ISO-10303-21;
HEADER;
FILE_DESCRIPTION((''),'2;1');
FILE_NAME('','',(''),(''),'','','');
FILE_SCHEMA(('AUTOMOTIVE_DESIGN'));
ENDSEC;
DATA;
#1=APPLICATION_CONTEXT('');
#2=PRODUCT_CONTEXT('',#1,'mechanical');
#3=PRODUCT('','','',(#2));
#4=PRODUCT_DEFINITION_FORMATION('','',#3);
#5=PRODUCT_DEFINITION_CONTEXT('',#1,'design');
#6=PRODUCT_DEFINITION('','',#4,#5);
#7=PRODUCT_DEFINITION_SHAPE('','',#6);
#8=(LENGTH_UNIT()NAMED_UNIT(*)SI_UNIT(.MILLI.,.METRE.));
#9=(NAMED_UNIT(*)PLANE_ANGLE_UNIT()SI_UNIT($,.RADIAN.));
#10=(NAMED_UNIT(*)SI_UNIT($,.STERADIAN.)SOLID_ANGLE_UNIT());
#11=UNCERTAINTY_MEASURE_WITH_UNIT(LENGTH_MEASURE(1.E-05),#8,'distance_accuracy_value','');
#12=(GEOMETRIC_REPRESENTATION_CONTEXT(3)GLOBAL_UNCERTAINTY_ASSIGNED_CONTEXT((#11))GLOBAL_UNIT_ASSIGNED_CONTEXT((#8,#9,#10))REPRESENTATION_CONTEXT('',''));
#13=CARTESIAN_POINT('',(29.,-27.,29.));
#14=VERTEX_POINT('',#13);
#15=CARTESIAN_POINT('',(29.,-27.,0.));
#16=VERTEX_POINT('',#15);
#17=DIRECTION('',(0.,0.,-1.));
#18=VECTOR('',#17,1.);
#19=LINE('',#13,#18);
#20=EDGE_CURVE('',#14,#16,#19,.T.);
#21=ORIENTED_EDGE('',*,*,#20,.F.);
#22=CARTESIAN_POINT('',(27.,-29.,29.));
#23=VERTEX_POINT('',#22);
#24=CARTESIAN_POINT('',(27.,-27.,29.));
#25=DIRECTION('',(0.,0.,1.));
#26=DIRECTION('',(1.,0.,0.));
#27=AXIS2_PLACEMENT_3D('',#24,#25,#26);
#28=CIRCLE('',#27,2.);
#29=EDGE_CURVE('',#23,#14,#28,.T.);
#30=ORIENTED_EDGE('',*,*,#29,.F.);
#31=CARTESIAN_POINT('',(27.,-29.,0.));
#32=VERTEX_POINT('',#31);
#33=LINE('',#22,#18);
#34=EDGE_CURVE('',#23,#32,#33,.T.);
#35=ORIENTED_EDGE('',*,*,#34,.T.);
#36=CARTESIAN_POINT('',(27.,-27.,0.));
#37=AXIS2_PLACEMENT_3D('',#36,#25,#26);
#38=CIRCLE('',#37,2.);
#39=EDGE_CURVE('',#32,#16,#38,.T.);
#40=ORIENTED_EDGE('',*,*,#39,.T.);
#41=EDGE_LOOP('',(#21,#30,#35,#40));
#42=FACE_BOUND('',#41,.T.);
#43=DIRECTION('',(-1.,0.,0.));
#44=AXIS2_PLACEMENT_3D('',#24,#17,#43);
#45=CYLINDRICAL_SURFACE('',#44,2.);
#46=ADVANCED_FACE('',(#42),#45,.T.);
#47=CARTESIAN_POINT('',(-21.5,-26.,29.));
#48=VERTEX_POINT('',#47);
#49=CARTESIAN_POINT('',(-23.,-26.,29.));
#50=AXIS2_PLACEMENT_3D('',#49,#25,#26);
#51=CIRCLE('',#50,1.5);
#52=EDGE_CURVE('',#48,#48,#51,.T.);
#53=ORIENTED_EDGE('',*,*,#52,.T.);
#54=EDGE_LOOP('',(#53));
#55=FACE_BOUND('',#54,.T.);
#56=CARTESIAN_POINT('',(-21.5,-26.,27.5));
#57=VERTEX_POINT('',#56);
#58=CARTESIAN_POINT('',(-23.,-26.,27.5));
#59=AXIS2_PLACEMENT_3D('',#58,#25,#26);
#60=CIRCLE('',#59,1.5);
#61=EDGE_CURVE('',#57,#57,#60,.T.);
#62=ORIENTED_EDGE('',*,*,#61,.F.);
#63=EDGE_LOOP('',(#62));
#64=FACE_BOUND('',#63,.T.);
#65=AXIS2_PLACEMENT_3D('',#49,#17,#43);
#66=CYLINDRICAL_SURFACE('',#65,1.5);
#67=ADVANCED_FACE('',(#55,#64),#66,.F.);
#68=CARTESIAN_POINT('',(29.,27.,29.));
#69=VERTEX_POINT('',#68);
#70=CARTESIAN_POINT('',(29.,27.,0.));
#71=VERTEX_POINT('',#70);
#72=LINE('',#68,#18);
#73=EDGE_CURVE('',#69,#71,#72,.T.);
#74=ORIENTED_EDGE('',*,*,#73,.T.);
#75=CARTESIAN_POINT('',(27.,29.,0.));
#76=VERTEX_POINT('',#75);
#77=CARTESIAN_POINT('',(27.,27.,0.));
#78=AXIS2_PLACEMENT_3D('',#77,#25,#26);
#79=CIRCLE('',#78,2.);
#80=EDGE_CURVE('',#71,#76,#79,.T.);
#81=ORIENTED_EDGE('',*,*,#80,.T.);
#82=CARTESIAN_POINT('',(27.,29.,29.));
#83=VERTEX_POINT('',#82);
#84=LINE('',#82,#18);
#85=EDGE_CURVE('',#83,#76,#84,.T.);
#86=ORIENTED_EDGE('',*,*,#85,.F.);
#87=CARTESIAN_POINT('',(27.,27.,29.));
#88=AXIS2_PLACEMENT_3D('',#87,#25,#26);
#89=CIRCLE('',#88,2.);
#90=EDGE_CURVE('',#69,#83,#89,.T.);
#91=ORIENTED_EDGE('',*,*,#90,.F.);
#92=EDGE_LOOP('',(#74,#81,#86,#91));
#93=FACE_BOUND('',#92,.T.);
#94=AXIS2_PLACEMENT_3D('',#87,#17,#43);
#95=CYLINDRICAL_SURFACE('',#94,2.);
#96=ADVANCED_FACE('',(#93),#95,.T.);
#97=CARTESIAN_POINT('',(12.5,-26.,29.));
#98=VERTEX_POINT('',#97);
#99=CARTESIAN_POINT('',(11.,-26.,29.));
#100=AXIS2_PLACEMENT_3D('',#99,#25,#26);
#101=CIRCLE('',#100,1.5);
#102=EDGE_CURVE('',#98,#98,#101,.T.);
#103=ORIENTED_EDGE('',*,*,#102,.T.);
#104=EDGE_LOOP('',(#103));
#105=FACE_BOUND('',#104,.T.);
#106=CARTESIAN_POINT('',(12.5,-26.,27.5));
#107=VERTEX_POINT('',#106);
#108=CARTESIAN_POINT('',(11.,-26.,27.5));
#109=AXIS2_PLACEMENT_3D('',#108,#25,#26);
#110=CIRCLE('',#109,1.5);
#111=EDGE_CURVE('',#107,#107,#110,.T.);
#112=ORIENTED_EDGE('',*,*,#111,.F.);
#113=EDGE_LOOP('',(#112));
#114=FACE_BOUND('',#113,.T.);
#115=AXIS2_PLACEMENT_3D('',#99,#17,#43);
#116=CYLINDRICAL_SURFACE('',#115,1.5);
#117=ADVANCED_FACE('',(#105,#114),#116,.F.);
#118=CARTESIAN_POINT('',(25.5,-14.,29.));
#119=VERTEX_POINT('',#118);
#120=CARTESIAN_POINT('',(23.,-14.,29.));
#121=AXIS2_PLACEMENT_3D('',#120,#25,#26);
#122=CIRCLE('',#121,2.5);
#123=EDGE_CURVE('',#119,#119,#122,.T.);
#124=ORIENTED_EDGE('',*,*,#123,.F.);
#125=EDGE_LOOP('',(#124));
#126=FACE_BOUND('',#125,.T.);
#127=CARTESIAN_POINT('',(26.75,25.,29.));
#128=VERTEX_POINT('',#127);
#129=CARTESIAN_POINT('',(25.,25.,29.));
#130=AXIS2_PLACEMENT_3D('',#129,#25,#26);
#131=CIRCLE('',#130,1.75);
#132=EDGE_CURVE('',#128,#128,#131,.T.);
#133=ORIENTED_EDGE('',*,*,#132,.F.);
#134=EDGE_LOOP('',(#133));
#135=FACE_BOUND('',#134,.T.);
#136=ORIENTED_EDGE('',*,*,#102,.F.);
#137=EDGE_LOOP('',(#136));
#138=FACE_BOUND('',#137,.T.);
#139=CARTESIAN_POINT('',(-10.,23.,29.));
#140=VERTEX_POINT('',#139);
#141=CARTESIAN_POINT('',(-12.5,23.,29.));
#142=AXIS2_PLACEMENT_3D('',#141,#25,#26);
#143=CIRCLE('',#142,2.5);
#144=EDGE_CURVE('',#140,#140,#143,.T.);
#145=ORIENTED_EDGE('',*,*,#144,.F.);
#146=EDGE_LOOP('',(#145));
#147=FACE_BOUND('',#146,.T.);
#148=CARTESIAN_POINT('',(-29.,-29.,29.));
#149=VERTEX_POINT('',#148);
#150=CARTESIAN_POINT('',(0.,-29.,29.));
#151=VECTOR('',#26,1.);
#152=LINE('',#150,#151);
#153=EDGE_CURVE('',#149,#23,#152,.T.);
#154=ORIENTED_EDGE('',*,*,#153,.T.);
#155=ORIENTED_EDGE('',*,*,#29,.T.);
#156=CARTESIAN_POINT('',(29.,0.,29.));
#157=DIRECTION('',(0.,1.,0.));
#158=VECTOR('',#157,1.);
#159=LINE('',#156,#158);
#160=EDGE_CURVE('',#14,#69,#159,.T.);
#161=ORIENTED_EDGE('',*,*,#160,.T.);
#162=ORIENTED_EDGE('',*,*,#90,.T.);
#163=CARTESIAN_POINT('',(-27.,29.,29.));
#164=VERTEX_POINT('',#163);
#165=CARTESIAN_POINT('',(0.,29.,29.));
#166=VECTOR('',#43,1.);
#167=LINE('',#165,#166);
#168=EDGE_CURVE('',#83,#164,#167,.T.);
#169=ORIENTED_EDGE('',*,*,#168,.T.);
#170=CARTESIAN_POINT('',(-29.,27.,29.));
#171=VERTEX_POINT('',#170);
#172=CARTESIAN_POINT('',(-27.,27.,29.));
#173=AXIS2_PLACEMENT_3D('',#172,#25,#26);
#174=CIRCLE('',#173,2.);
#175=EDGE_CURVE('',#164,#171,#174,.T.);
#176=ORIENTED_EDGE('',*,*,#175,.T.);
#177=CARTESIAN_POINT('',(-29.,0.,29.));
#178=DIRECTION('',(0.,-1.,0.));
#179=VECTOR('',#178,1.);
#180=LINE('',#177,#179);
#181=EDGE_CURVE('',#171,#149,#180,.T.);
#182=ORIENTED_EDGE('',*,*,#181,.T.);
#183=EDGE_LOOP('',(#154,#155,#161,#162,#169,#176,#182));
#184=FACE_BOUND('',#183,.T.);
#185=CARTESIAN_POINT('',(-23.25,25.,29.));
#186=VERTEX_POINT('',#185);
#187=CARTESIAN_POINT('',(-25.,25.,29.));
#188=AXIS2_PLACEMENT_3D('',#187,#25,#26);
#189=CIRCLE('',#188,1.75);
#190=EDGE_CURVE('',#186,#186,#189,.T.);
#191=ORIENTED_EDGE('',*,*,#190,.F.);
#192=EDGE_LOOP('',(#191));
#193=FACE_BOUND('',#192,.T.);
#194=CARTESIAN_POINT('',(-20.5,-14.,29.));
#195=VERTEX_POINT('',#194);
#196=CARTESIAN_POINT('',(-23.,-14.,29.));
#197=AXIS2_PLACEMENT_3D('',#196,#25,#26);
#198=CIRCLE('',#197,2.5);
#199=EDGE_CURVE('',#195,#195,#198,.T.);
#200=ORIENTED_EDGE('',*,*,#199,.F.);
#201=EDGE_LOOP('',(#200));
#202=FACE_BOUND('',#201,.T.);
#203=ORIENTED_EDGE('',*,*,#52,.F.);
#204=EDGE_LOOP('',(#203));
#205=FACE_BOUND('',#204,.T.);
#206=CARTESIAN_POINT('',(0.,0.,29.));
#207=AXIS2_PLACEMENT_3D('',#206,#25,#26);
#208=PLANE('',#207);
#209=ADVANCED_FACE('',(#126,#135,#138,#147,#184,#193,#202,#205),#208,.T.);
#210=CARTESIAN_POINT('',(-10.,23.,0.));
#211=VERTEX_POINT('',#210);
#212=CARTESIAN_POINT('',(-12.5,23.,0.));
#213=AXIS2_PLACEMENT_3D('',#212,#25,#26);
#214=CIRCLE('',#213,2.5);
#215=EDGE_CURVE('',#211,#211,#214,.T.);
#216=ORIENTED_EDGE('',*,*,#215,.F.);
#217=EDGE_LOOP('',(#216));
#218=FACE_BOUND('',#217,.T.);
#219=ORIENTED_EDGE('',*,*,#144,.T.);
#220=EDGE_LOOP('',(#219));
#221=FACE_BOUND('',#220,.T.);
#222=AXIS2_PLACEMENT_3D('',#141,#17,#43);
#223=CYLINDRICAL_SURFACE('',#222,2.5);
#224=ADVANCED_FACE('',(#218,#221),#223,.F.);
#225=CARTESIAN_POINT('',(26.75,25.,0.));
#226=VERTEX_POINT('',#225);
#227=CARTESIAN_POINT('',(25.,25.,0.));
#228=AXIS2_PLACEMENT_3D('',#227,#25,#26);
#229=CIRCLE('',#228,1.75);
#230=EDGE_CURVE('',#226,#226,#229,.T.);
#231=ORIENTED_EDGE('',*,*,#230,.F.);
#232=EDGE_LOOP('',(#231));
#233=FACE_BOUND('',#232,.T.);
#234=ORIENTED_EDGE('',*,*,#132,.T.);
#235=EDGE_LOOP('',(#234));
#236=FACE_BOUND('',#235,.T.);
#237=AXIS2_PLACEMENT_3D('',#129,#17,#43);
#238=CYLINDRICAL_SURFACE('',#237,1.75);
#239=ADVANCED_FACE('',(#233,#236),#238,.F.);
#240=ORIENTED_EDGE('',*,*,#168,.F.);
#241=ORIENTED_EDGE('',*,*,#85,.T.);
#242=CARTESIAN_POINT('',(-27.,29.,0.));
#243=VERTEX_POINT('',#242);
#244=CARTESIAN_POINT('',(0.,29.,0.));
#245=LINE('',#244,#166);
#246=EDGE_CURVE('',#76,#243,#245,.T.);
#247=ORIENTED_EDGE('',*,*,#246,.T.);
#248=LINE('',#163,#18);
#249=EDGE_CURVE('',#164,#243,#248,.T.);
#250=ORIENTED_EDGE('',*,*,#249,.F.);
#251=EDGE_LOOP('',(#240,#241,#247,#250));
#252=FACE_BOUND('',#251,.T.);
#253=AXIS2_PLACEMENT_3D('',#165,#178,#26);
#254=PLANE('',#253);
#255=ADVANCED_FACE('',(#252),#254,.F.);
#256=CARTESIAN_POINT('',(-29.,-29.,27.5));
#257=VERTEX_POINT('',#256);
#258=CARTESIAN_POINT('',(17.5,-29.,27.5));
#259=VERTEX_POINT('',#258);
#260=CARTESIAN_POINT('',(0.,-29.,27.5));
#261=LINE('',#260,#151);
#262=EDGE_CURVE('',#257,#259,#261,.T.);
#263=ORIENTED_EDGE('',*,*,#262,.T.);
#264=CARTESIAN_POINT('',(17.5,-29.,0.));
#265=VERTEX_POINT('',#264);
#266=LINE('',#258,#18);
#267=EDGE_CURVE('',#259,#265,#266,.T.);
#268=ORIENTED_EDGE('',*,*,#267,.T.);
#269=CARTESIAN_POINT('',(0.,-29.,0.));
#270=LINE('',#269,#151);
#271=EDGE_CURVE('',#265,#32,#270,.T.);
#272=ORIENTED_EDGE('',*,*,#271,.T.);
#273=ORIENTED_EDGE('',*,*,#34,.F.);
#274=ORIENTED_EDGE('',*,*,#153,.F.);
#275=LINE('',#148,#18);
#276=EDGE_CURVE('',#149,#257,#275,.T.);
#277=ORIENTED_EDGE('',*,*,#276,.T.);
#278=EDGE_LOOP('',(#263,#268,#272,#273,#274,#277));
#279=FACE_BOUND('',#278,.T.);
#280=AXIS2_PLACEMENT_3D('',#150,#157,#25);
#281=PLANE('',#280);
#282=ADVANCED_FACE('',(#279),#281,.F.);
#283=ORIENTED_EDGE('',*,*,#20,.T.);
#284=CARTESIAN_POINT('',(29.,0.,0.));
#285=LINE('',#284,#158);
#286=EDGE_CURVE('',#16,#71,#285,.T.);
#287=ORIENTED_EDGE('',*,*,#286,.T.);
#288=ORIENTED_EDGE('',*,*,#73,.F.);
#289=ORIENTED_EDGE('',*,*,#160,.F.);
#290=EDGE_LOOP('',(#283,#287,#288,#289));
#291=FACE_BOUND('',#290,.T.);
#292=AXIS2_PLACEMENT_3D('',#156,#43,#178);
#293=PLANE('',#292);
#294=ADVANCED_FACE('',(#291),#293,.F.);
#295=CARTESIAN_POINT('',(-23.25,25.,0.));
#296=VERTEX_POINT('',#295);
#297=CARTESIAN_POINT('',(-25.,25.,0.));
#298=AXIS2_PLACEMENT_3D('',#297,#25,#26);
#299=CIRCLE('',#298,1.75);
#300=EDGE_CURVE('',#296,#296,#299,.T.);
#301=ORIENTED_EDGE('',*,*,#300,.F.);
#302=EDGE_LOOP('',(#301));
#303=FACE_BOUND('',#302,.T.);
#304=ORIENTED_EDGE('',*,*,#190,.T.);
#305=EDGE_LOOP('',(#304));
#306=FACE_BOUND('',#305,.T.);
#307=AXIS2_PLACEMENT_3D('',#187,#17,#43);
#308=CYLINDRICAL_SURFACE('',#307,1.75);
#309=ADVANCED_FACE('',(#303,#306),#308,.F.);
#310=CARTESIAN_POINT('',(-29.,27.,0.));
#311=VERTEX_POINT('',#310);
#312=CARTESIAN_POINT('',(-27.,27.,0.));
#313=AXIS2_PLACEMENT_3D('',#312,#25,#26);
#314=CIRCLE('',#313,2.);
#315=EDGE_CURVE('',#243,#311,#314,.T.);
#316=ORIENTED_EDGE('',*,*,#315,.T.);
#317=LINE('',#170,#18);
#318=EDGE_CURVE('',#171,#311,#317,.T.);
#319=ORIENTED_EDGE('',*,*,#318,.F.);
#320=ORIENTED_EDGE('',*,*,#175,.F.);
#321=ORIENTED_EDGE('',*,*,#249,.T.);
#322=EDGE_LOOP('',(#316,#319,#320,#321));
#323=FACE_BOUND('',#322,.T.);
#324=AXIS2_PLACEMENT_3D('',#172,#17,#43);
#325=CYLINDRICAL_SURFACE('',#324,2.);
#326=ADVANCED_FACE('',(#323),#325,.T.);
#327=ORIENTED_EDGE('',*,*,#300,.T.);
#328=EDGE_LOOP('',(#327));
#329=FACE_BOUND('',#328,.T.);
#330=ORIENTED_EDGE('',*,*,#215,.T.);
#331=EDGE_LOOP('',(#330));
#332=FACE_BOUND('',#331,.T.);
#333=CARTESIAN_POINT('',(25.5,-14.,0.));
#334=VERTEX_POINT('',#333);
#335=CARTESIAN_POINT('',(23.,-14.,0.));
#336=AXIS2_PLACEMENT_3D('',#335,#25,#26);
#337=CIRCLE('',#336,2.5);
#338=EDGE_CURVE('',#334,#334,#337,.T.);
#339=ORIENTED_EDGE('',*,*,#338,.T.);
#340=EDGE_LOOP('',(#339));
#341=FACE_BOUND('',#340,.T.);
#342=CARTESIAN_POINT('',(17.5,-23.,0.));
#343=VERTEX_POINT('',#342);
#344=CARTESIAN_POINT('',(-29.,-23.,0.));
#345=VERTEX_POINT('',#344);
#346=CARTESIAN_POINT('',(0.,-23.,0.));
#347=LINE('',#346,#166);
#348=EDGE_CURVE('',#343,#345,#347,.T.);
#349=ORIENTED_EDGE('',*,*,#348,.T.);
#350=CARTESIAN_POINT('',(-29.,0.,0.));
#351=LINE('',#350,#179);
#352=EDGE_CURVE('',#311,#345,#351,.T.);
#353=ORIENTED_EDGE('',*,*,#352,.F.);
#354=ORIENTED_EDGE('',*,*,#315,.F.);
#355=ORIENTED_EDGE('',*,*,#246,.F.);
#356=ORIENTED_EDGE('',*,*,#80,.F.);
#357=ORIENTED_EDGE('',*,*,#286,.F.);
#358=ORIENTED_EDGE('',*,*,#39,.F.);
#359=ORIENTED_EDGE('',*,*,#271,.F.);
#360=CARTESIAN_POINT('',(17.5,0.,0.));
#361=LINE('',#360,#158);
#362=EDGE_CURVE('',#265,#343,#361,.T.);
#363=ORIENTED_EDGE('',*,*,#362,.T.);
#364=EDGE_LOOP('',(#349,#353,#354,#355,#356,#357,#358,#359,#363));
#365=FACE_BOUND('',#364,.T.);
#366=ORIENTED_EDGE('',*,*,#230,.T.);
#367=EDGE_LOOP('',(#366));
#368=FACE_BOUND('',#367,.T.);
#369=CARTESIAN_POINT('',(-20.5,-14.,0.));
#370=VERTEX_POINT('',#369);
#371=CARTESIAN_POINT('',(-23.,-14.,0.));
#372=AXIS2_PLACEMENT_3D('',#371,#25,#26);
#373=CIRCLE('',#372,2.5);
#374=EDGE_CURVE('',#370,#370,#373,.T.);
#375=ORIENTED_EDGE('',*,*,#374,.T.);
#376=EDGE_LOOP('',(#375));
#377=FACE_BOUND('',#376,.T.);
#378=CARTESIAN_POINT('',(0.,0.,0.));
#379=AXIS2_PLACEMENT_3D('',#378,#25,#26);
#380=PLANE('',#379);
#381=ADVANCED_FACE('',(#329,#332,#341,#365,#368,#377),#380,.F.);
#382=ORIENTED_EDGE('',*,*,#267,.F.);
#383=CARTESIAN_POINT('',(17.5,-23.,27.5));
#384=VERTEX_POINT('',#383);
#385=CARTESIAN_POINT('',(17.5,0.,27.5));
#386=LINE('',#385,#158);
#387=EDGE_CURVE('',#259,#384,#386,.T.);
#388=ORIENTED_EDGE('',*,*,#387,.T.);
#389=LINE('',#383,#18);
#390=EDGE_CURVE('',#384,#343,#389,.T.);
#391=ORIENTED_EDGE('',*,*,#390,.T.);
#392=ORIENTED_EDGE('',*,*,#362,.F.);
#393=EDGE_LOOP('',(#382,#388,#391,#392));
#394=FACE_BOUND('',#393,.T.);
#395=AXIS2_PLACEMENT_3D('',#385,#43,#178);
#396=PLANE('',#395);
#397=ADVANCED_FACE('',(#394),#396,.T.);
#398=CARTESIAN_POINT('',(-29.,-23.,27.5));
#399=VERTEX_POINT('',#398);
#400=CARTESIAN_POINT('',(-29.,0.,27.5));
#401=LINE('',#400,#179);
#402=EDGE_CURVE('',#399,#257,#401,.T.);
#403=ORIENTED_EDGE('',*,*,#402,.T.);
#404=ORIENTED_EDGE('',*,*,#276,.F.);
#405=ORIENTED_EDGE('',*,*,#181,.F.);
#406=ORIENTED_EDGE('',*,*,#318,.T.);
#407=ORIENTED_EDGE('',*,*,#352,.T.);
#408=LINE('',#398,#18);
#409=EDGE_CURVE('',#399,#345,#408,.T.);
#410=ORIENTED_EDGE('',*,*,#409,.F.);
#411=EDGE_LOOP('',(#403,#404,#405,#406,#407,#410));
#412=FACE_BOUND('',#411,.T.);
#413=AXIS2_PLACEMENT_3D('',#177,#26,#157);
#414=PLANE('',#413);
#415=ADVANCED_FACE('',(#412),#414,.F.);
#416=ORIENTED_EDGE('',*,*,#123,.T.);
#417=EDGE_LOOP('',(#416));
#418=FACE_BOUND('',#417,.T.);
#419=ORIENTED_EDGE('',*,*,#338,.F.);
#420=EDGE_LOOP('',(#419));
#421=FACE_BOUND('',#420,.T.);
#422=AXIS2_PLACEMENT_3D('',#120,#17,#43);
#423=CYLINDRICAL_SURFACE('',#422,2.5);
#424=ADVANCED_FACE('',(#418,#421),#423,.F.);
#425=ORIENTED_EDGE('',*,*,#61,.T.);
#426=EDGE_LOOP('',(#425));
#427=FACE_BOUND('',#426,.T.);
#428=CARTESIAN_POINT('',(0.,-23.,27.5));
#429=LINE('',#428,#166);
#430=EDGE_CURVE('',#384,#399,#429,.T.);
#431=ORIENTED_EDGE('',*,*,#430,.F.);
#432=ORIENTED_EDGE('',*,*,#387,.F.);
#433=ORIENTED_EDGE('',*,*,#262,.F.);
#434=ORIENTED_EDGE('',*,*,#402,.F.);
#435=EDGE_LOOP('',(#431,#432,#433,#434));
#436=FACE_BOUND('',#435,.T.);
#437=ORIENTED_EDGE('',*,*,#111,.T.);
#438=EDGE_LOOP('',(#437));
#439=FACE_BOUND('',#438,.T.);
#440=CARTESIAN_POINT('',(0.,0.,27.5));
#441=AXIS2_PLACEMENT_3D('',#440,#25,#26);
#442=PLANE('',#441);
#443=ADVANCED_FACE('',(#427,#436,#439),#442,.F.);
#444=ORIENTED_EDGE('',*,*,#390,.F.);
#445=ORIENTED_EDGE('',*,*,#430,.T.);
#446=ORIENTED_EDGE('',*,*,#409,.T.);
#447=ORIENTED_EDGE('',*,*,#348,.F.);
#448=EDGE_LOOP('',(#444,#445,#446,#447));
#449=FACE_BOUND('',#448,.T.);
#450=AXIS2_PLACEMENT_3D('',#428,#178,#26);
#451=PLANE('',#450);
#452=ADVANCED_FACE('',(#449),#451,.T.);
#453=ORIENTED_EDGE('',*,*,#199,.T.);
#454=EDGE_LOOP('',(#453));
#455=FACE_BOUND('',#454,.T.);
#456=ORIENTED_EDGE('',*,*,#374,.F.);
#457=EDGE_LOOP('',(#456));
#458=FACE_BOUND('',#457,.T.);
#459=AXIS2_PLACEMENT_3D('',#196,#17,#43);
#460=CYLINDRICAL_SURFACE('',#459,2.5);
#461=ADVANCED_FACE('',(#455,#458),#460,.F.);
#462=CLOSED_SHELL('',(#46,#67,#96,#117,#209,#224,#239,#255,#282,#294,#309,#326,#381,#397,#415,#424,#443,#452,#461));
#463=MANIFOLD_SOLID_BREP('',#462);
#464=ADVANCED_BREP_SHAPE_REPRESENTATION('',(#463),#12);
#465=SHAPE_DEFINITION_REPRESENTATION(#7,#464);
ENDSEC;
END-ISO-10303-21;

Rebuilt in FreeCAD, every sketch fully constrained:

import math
import FreeCAD as App
import Part
import Sketcher

V = App.Vector


def add_polygon(sketch, points):
    """Adds a closed chain of lines whose ends are joined by coincident constraints."""
    first, n = sketch.GeometryCount, len(points)
    for a, b in zip(points, points[1:] + points[:1]):
        sketch.addGeometry(Part.LineSegment(App.Vector(*a, 0), App.Vector(*b, 0)), False)
    for i in range(n):
        sketch.addConstraint(Sketcher.Constraint("Coincident", first + i, 2, first + (i + 1) % n, 1))

doc = App.newDocument("Part")
body = doc.addObject("PartDesign::Body", "Body")

sketch1 = body.newObject("Sketcher::SketchObject", "Sketch")
sketch1.AttachmentSupport = (doc.getObject("XY_Plane"), [""])
sketch1.MapMode = "FlatFace"
sketch1.addGeometry([
    Part.LineSegment(V(27, 29, 0), V(-27, 29, 0)),
    Part.ArcOfCircle(Part.Circle(V(-27, 27, 0), V(0, 0, 1), 2), math.radians(90), math.radians(180)),
    Part.LineSegment(V(-29, 27, 0), V(-29, -29, 0)),
    Part.LineSegment(V(-29, -29, 0), V(27, -29, 0)),
    Part.ArcOfCircle(Part.Circle(V(27, -27, 0), V(0, 0, 1), 2), math.radians(-90), math.radians(0)),
    Part.LineSegment(V(29, -27, 0), V(29, 27, 0)),
    Part.ArcOfCircle(Part.Circle(V(27, 27, 0), V(0, 0, 1), 2), math.radians(0), math.radians(90)),
    Part.Circle(V(-23, -26, 0), V(0, 0, 1), 1.5),
    Part.Circle(V(-23, -14, 0), V(0, 0, 1), 2.5),
    Part.Circle(V(11, -26, 0), V(0, 0, 1), 1.5),
    Part.Circle(V(23, -14, 0), V(0, 0, 1), 2.5),
    Part.Circle(V(-25, 25, 0), V(0, 0, 1), 1.75),
    Part.Circle(V(-12.5, 23, 0), V(0, 0, 1), 2.5),
    Part.Circle(V(25, 25, 0), V(0, 0, 1), 1.75),
], False)
sketch1.addConstraint([
    Sketcher.Constraint("Tangent", 0, 2, 1, 1),
    Sketcher.Constraint("Tangent", 1, 2, 2, 1),
    Sketcher.Constraint("Coincident", 2, 2, 3, 1),
    Sketcher.Constraint("Tangent", 3, 2, 4, 1),
    Sketcher.Constraint("Tangent", 4, 2, 5, 1),
    Sketcher.Constraint("Tangent", 5, 2, 6, 1),
    Sketcher.Constraint("Tangent", 6, 2, 0, 1),
    Sketcher.Constraint("Horizontal", 0),
    Sketcher.Constraint("Vertical", 2),
    Sketcher.Constraint("Horizontal", 3),
    Sketcher.Constraint("Vertical", 5),
    Sketcher.Constraint("Equal", 1, 4),
    Sketcher.Constraint("Equal", 4, 6),
    Sketcher.Constraint("Equal", 7, 9),
    Sketcher.Constraint("Equal", 8, 10),
    Sketcher.Constraint("Equal", 10, 12),
    Sketcher.Constraint("Equal", 11, 13),
    Sketcher.Constraint("Symmetric", 1, 3, 4, 3, -1, 1),
    Sketcher.Constraint("Symmetric", 8, 3, 10, 3, -2),
    Sketcher.Constraint("Symmetric", 11, 3, 13, 3, -2),
    Sketcher.Constraint("Horizontal", 7, 3, 9, 3),
    Sketcher.Constraint("Vertical", 7, 3, 8, 3),
    Sketcher.Constraint("Equal", 3, 2),
    Sketcher.Constraint("Diameter", 7, 3.0),
    Sketcher.Constraint("Diameter", 8, 5.0),
    Sketcher.Constraint("Radius", 1, 2.0),
    Sketcher.Constraint("Diameter", 11, 3.5),
    Sketcher.Constraint("DistanceX", 0, 2, 0, 1, 54.0),
    Sketcher.Constraint("DistanceX", 7, 3, -1, 1, 23.0),
    Sketcher.Constraint("DistanceY", 7, 3, -1, 1, 26.0),
    Sketcher.Constraint("DistanceY", 8, 3, -1, 1, 14.0),
    Sketcher.Constraint("DistanceX", -1, 1, 9, 3, 11.0),
    Sketcher.Constraint("DistanceX", 11, 3, -1, 1, 25.0),
    Sketcher.Constraint("DistanceY", -1, 1, 11, 3, 25.0),
    Sketcher.Constraint("DistanceY", -1, 1, 12, 3, 23.0),
    Sketcher.Constraint("DistanceX", 12, 3, -1, 1, 12.5),
])
pad1 = body.newObject("PartDesign::Pad", "Pad")
pad1.Profile = sketch1
pad1.Length = 29

sketch2 = body.newObject("Sketcher::SketchObject", "Sketch001")
sketch2.AttachmentSupport = (doc.getObject("XY_Plane"), [""])
sketch2.MapMode = "FlatFace"
add_polygon(sketch2, [(-29, -23), (-29, -29), (17.5, -29), (17.5, -23)])
sketch2.addGeometry(Part.Circle(V(-23, -26, 0), V(0, 0, 1), 1.5), False)
sketch2.addGeometry(Part.Circle(V(11, -26, 0), V(0, 0, 1), 1.5), False)
sketch2.addConstraint([
    Sketcher.Constraint("Vertical", 0),
    Sketcher.Constraint("Horizontal", 1),
    Sketcher.Constraint("Vertical", 2),
    Sketcher.Constraint("Horizontal", 3),
    Sketcher.Constraint("Equal", 4, 5),
    Sketcher.Constraint("Horizontal", 4, 3, 5, 3),
    Sketcher.Constraint("Diameter", 4, 3.0),
    Sketcher.Constraint("DistanceY", 0, 2, 0, 1, 6.0),
    Sketcher.Constraint("DistanceX", 1, 1, 1, 2, 46.5),
    Sketcher.Constraint("DistanceX", 4, 3, -1, 1, 23.0),
    Sketcher.Constraint("DistanceY", 4, 3, -1, 1, 26.0),
    Sketcher.Constraint("DistanceX", -1, 1, 5, 3, 11.0),
    Sketcher.Constraint("DistanceX", 0, 2, -1, 1, 29.0),
    Sketcher.Constraint("DistanceY", 0, 2, -1, 1, 29.0),
])
pocket1 = body.newObject("PartDesign::Pocket", "Pocket")
pocket1.Profile = sketch2
pocket1.Length = 27.5
pocket1.Reversed = True

doc.recompute()
